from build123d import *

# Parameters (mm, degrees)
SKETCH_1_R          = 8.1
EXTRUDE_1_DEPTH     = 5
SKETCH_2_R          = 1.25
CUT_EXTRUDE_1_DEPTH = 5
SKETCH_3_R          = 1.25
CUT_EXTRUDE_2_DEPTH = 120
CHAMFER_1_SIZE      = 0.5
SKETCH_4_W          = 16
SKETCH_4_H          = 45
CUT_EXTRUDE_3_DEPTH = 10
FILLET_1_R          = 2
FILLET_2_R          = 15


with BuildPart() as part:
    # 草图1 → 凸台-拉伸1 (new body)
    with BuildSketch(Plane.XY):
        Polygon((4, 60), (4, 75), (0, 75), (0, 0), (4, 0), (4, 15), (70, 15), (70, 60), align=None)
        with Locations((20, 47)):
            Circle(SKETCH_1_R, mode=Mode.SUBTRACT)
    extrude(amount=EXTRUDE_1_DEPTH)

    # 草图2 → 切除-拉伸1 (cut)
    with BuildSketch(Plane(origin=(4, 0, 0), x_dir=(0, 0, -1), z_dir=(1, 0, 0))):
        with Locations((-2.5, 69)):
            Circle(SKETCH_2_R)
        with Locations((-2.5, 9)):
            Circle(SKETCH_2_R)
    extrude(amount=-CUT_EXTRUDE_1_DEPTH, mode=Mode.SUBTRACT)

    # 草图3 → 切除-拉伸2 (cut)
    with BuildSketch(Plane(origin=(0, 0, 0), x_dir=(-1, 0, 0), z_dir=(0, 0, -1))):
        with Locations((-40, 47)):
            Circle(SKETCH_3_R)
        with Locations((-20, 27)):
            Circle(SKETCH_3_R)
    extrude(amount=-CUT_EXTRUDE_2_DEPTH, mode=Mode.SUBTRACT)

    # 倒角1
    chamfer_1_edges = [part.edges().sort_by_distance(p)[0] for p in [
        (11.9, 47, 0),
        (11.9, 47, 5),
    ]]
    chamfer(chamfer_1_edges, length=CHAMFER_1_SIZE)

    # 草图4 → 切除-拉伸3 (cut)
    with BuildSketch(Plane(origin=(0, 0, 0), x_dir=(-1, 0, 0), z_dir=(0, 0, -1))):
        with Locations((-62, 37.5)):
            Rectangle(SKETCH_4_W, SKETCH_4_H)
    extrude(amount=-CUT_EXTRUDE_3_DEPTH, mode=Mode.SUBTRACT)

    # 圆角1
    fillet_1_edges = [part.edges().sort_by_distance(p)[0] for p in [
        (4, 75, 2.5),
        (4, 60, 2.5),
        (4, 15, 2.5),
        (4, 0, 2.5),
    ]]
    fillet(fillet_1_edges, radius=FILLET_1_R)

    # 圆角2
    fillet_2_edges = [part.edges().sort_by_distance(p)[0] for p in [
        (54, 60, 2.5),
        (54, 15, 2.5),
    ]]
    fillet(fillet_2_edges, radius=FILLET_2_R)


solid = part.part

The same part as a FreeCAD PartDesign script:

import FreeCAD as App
import Part
import Sketcher

V = App.Vector


def edges_at(feature, points):
    """Names of the edges that pass closest to the given points."""
    edges = feature.Shape.Edges
    near = lambda p: min(range(len(edges)), key=lambda i: edges[i].distToShape(Part.Vertex(*p))[0])
    return sorted({f"Edge{near(p) + 1}" for p in points})


def add_polygon(sketch, points):
    """Adds a closed chain of lines whose ends are joined by coincident constraints."""
    first, n = sketch.GeometryCount, len(points)
    for a, b in zip(points, points[1:] + points[:1]):
        sketch.addGeometry(Part.LineSegment(App.Vector(*a, 0), App.Vector(*b, 0)), False)
    for i in range(n):
        sketch.addConstraint(Sketcher.Constraint("Coincident", first + i, 2, first + (i + 1) % n, 1))

doc = App.newDocument("Part")
body = doc.addObject("PartDesign::Body", "Body")

sketch1 = body.newObject("Sketcher::SketchObject", "Sketch")
sketch1.AttachmentSupport = (doc.getObject("XY_Plane"), [""])
sketch1.MapMode = "FlatFace"
add_polygon(sketch1, [(4, 60), (4, 75), (0, 75), (0, 0), (4, 0), (4, 15), (70, 15), (70, 60)])
sketch1.addGeometry(Part.Circle(V(20, 47, 0), V(0, 0, 1), 8.1), False)
sketch1.addConstraint(Sketcher.Constraint("Vertical", 0))
sketch1.addConstraint(Sketcher.Constraint("Horizontal", 1))
sketch1.addConstraint(Sketcher.Constraint("Vertical", 2))
sketch1.addConstraint(Sketcher.Constraint("Horizontal", 3))
sketch1.addConstraint(Sketcher.Constraint("Vertical", 4))
sketch1.addConstraint(Sketcher.Constraint("Horizontal", 5))
sketch1.addConstraint(Sketcher.Constraint("Vertical", 6))
sketch1.addConstraint(Sketcher.Constraint("Horizontal", 7))
sketch1.addConstraint(Sketcher.Constraint("Coincident", 2, 2, -1, 1))
sketch1.addConstraint(Sketcher.Constraint("Vertical", 0, 2, 3, 2))
sketch1.addConstraint(Sketcher.Constraint("Equal", 0, 4))
sketch1.addConstraint(Sketcher.Constraint("Diameter", 8, 16.2))
sketch1.addConstraint(Sketcher.Constraint("DistanceX", 1, 2, 1, 1, 4.0))
sketch1.addConstraint(Sketcher.Constraint("DistanceX", 5, 1, 5, 2, 66.0))
sketch1.addConstraint(Sketcher.Constraint("DistanceY", 0, 1, 0, 2, 15.0))
sketch1.addConstraint(Sketcher.Constraint("DistanceY", 2, 2, 2, 1, 75.0))
sketch1.addConstraint(Sketcher.Constraint("DistanceX", -1, 1, 8, 3, 20.0))
sketch1.addConstraint(Sketcher.Constraint("DistanceY", -1, 1, 8, 3, 47.0))
pad1 = body.newObject("PartDesign::Pad", "Pad")
pad1.Profile = sketch1
pad1.Length = 5

sketch2 = body.newObject("Sketcher::SketchObject", "Sketch001")
sketch2.AttachmentSupport = (doc.getObject("YZ_Plane"), [""])
sketch2.MapMode = "FlatFace"
sketch2.AttachmentOffset = App.Placement(V(0, 0, 4), App.Rotation())
sketch2.addGeometry(Part.Circle(V(69, 2.5, 0), V(0, 0, 1), 1.2), False)
sketch2.addGeometry(Part.Circle(V(9, 2.5, 0), V(0, 0, 1), 1.2), False)
sketch2.addConstraint(Sketcher.Constraint("Equal", 0, 1))
sketch2.addConstraint(Sketcher.Constraint("Horizontal", 0, 3, 1, 3))
sketch2.addConstraint(Sketcher.Constraint("Diameter", 0, 2.5))
sketch2.addConstraint(Sketcher.Constraint("DistanceX", -1, 1, 0, 3, 69.0))
sketch2.addConstraint(Sketcher.Constraint("DistanceX", -1, 1, 1, 3, 9.0))
sketch2.addConstraint(Sketcher.Constraint("DistanceY", -1, 1, 0, 3, 2.5))
pocket1 = body.newObject("PartDesign::Pocket", "Pocket")
pocket1.Profile = sketch2
pocket1.Length = 5

sketch3 = body.newObject("Sketcher::SketchObject", "Sketch002")
sketch3.AttachmentSupport = (doc.getObject("XY_Plane"), [""])
sketch3.MapMode = "FlatFace"
sketch3.addGeometry(Part.Circle(V(40, 47, 0), V(0, 0, 1), 1.2), False)
sketch3.addGeometry(Part.Circle(V(20, 27, 0), V(0, 0, 1), 1.2), False)
sketch3.addConstraint(Sketcher.Constraint("Equal", 0, 1))
sketch3.addConstraint(Sketcher.Constraint("Diameter", 0, 2.5))
sketch3.addConstraint(Sketcher.Constraint("DistanceX", -1, 1, 0, 3, 40.0))
sketch3.addConstraint(Sketcher.Constraint("DistanceY", -1, 1, 0, 3, 47.0))
sketch3.addConstraint(Sketcher.Constraint("DistanceX", -1, 1, 1, 3, 20.0))
sketch3.addConstraint(Sketcher.Constraint("DistanceY", -1, 1, 1, 3, 27.0))
pocket2 = body.newObject("PartDesign::Pocket", "Pocket001")
pocket2.Profile = sketch3
pocket2.Length = 120
pocket2.Reversed = True
doc.recompute()

chamfer = body.newObject("PartDesign::Chamfer", "Chamfer")
chamfer.Base = (pocket2, edges_at(pocket2, [(11.9, 47, 0), (11.9, 47, 5)]))
chamfer.Size = 0.5

sketch4 = body.newObject("Sketcher::SketchObject", "Sketch003")
sketch4.AttachmentSupport = (doc.getObject("XY_Plane"), [""])
sketch4.MapMode = "FlatFace"
add_polygon(sketch4, [(70, 60), (70, 15), (54, 15), (54, 60)])
sketch4.addConstraint(Sketcher.Constraint("Vertical", 0))
sketch4.addConstraint(Sketcher.Constraint("Horizontal", 1))
sketch4.addConstraint(Sketcher.Constraint("Vertical", 2))
sketch4.addConstraint(Sketcher.Constraint("Horizontal", 3))
sketch4.addConstraint(Sketcher.Constraint("DistanceX", 1, 2, 1, 1, 16.0))
sketch4.addConstraint(Sketcher.Constraint("DistanceY", 0, 2, 0, 1, 45.0))
sketch4.addConstraint(Sketcher.Constraint("DistanceX", -1, 1, 0, 2, 70.0))
sketch4.addConstraint(Sketcher.Constraint("DistanceY", -1, 1, 0, 2, 15.0))
pocket3 = body.newObject("PartDesign::Pocket", "Pocket002")
pocket3.Profile = sketch4
pocket3.Length = 10
pocket3.Reversed = True
doc.recompute()

fillet = body.newObject("PartDesign::Fillet", "Fillet")
fillet.Base = (pocket3, edges_at(pocket3, [
    (4, 75, 2.5),
    (4, 60, 2.5),
    (4, 15, 2.5),
    (4, 0, 2.5),
]))
fillet.Radius = 2
doc.recompute()

fillet2 = body.newObject("PartDesign::Fillet", "Fillet001")
fillet2.Base = (fillet, edges_at(fillet, [(54, 60, 2.5), (54, 15, 2.5)]))
fillet2.Radius = 15

doc.recompute()
